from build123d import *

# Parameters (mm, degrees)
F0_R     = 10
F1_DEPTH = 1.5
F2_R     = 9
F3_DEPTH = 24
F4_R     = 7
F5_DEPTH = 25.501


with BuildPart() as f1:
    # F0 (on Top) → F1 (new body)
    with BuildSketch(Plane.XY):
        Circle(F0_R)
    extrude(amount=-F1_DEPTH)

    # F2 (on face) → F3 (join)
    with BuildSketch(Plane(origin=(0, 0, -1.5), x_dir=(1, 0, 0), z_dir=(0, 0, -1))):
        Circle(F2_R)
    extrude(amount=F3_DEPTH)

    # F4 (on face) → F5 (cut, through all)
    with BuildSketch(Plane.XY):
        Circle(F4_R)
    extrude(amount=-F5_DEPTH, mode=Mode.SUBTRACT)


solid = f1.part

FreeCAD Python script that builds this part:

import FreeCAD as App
import Part
import Sketcher
from FreeCAD import Vector

doc = App.newDocument("Part")
body = doc.addObject("PartDesign::Body", "Body")

# Sketch on XY plane
sketch1 = body.newObject("Sketcher::SketchObject", "Sketch")
sketch1.AttachmentSupport = (doc.getObject("XY_Plane"), [""])
sketch1.MapMode = "FlatFace"
sketch1.addGeometry(Part.Circle(Vector(0, 0, 0), Vector(0, 0, 1), 10), False)
sketch1.addConstraint(Sketcher.Constraint("Coincident", 0, 3, -1, 1))
sketch1.addConstraint(Sketcher.Constraint("Diameter", 0, 20.0))
pad1 = body.newObject("PartDesign::Pad", "Pad")
pad1.Profile = sketch1
pad1.Length = 1.5
pad1.Reversed = True

# Sketch on XY plane
sketch2 = body.newObject("Sketcher::SketchObject", "Sketch001")
sketch2.AttachmentSupport = (doc.getObject("XY_Plane"), [""])
sketch2.MapMode = "FlatFace"
sketch2.AttachmentOffset = App.Placement(Vector(0, 0, -1.5), App.Rotation())
sketch2.addGeometry(Part.Circle(Vector(0, 0, 0), Vector(0, 0, 1), 9), False)
sketch2.addConstraint(Sketcher.Constraint("Coincident", 0, 3, -1, 1))
sketch2.addConstraint(Sketcher.Constraint("Diameter", 0, 18.0))
pad2 = body.newObject("PartDesign::Pad", "Pad001")
pad2.Profile = sketch2
pad2.Length = 24
pad2.Reversed = True

# Sketch on XY plane
sketch3 = body.newObject("Sketcher::SketchObject", "Sketch002")
sketch3.AttachmentSupport = (doc.getObject("XY_Plane"), [""])
sketch3.MapMode = "FlatFace"
sketch3.addGeometry(Part.Circle(Vector(0, 0, 0), Vector(0, 0, 1), 7), False)
sketch3.addConstraint(Sketcher.Constraint("Coincident", 0, 3, -1, 1))
sketch3.addConstraint(Sketcher.Constraint("Diameter", 0, 14.0))
pocket1 = body.newObject("PartDesign::Pocket", "Pocket")
pocket1.Profile = sketch3
pocket1.Type = "ThroughAll"

doc.recompute()
